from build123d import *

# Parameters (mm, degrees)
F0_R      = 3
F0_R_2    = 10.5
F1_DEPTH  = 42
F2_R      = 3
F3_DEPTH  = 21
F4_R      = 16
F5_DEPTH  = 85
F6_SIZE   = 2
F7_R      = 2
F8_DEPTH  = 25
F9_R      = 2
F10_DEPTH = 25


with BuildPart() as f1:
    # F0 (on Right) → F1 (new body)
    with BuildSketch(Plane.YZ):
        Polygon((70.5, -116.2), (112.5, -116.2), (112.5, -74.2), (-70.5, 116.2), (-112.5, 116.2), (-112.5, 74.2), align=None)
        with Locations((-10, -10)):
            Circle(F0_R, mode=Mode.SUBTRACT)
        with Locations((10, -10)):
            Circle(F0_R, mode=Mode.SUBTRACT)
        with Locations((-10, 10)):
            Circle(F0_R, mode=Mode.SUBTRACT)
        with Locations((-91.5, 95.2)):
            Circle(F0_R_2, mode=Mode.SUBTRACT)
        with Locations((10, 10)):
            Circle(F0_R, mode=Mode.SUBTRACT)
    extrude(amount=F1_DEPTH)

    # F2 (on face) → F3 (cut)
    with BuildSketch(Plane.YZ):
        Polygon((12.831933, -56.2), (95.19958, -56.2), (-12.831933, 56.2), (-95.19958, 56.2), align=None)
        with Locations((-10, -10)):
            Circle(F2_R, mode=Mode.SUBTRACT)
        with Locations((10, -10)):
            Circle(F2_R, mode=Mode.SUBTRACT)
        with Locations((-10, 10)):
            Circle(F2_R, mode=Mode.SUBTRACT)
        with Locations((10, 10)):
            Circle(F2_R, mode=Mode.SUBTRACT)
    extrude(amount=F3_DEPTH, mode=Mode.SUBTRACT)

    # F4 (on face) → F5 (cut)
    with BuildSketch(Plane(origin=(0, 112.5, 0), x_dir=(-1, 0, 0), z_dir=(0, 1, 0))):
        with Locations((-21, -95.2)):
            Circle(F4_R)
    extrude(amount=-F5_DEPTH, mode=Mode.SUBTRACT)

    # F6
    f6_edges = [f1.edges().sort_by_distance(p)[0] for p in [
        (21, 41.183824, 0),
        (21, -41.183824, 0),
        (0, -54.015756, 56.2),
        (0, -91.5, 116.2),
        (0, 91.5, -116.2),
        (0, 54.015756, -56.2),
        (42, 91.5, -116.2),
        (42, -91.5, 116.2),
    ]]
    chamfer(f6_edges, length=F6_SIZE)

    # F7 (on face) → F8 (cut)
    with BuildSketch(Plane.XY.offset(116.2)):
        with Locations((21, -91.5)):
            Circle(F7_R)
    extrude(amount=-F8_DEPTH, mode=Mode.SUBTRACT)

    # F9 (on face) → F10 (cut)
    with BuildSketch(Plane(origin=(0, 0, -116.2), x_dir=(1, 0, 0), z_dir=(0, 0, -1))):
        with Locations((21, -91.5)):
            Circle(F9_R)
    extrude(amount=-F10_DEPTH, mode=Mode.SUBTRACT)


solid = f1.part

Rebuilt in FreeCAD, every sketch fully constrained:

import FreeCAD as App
import Part
import Sketcher

V = App.Vector


def edges_at(feature, points):
    """Names of the edges that pass closest to the given points."""
    edges = feature.Shape.Edges
    near = lambda p: min(range(len(edges)), key=lambda i: edges[i].distToShape(Part.Vertex(*p))[0])
    return sorted({f"Edge{near(p) + 1}" for p in points})


def add_polygon(sketch, points):
    """Adds a closed chain of lines whose ends are joined by coincident constraints."""
    first, n = sketch.GeometryCount, len(points)
    for a, b in zip(points, points[1:] + points[:1]):
        sketch.addGeometry(Part.LineSegment(App.Vector(*a, 0), App.Vector(*b, 0)), False)
    for i in range(n):
        sketch.addConstraint(Sketcher.Constraint("Coincident", first + i, 2, first + (i + 1) % n, 1))

doc = App.newDocument("Part")
body = doc.addObject("PartDesign::Body", "Body")

sketch1 = doc.addObject("Sketcher::SketchObject", "Sketch")
body.addObject(sketch1)
sketch1.AttachmentSupport = (doc.YZ_Plane, [""])
sketch1.MapMode = "FlatFace"
add_polygon(sketch1, [(70.5, -116.2), (112.5, -116.2), (112.5, -74.2), (-70.5, 116.2), (-112.5, 116.2), (-112.5, 74.2)])
sketch1.addGeometry(Part.Circle(V(-10, -10, 0), V(0, 0, 1), 3), False)
sketch1.addGeometry(Part.Circle(V(10, -10, 0), V(0, 0, 1), 3), False)
sketch1.addGeometry(Part.Circle(V(-10, 10, 0), V(0, 0, 1), 3), False)
sketch1.addGeometry(Part.Circle(V(10, 10, 0), V(0, 0, 1), 3), False)
sketch1.addGeometry(Part.Circle(V(-91.5, 95.2, 0), V(0, 0, 1), 10.5), False)
sketch1.addConstraint(Sketcher.Constraint("Horizontal", 0))
sketch1.addConstraint(Sketcher.Constraint("Vertical", 1))
sketch1.addConstraint(Sketcher.Constraint("Horizontal", 3))
sketch1.addConstraint(Sketcher.Constraint("Vertical", 4))
sketch1.addConstraint(Sketcher.Constraint("Equal", 6, 7))
sketch1.addConstraint(Sketcher.Constraint("Equal", 7, 8))
sketch1.addConstraint(Sketcher.Constraint("Equal", 8, 9))
sketch1.addConstraint(Sketcher.Constraint("Symmetric", 7, 3, 8, 3, -1, 1))
sketch1.addConstraint(Sketcher.Constraint("Symmetric", 6, 3, 9, 3, -1, 1))
sketch1.addConstraint(Sketcher.Constraint("Symmetric", 0, 2, 3, 2, -1, 1))
sketch1.addConstraint(Sketcher.Constraint("Symmetric", 6, 3, 7, 3, -2))
sketch1.addConstraint(Sketcher.Constraint("Parallel", 2, 5))
sketch1.addConstraint(Sketcher.Constraint("Equal", 0, 3))
sketch1.addConstraint(Sketcher.Constraint("Equal", 3, 1))
sketch1.addConstraint(Sketcher.Constraint("Diameter", 6, 6.0))
sketch1.addConstraint(Sketcher.Constraint("Diameter", 10, 21.0))
sketch1.addConstraint(Sketcher.Constraint("DistanceX", 0, 1, 0, 2, 42.0))
sketch1.addConstraint(Sketcher.Constraint("DistanceX", 6, 3, -1, 1, 10.0))
sketch1.addConstraint(Sketcher.Constraint("DistanceY", 6, 3, -1, 1, 10.0))
sketch1.addConstraint(Sketcher.Constraint("DistanceX", 10, 3, 0, 2, 204.0))
sketch1.addConstraint(Sketcher.Constraint("DistanceX", 10, 3, 2, 2, 21.0))
sketch1.addConstraint(Sketcher.Constraint("DistanceY", 10, 3, 2, 2, 21.0))
sketch1.addConstraint(Sketcher.Constraint("DistanceY", -1, 1, 10, 3, 95.2))
pad1 = doc.addObject("PartDesign::Pad", "Pad")
body.addObject(pad1)
pad1.Profile = sketch1
pad1.Length = 42

sketch2 = doc.addObject("Sketcher::SketchObject", "Sketch001")
body.addObject(sketch2)
sketch2.AttachmentSupport = (doc.YZ_Plane, [""])
sketch2.MapMode = "FlatFace"
add_polygon(sketch2, [(12.831933, -56.2), (95.19958, -56.2), (-12.831933, 56.2), (-95.19958, 56.2)])
sketch2.addGeometry(Part.Circle(V(-10, -10, 0), V(0, 0, 1), 3), False)
sketch2.addGeometry(Part.Circle(V(10, -10, 0), V(0, 0, 1), 3), False)
sketch2.addGeometry(Part.Circle(V(-10, 10, 0), V(0, 0, 1), 3), False)
sketch2.addGeometry(Part.Circle(V(10, 10, 0), V(0, 0, 1), 3), False)
sketch2.addConstraint(Sketcher.Constraint("Horizontal", 0))
sketch2.addConstraint(Sketcher.Constraint("Horizontal", 2))
sketch2.addConstraint(Sketcher.Constraint("Equal", 4, 5))
sketch2.addConstraint(Sketcher.Constraint("Equal", 5, 6))
sketch2.addConstraint(Sketcher.Constraint("Equal", 6, 7))
sketch2.addConstraint(Sketcher.Constraint("Symmetric", 5, 3, 6, 3, -1, 1))
sketch2.addConstraint(Sketcher.Constraint("Symmetric", 4, 3, 7, 3, -1, 1))
sketch2.addConstraint(Sketcher.Constraint("Symmetric", 0, 2, 2, 2, -1, 1))
sketch2.addConstraint(Sketcher.Constraint("Symmetric", 4, 3, 5, 3, -2))
sketch2.addConstraint(Sketcher.Constraint("Parallel", 1, 3))
sketch2.addConstraint(Sketcher.Constraint("Diameter", 4, 6.0))
sketch2.addConstraint(Sketcher.Constraint("DistanceX", 4, 3, -1, 1, 10.0))
sketch2.addConstraint(Sketcher.Constraint("DistanceY", 4, 3, -1, 1, 10.0))
sketch2.addConstraint(Sketcher.Constraint("DistanceY", 0, 2, -1, 1, 56.2))
sketch2.addConstraint(Sketcher.Constraint("DistanceX", 0, 1, 0, 2, 82.367647))
sketch2.addConstraint(Sketcher.Constraint("DistanceX", -1, 1, 0, 2, 95.19958))
pocket1 = doc.addObject("PartDesign::Pocket", "Pocket")
body.addObject(pocket1)
pocket1.Profile = sketch2
pocket1.Length = 21
pocket1.Reversed = True

sketch3 = doc.addObject("Sketcher::SketchObject", "Sketch002")
body.addObject(sketch3)
sketch3.AttachmentSupport = (doc.XZ_Plane, [""])
sketch3.MapMode = "FlatFace"
sketch3.AttachmentOffset = App.Placement(V(0, 0, -112.5), App.Rotation())
sketch3.addGeometry(Part.Circle(V(21, -95.2, 0), V(0, 0, 1), 16), False)
sketch3.addConstraint(Sketcher.Constraint("Diameter", 0, 32.0))
sketch3.addConstraint(Sketcher.Constraint("DistanceX", -1, 1, 0, 3, 21.0))
sketch3.addConstraint(Sketcher.Constraint("DistanceY", 0, 3, -1, 1, 95.2))
pocket2 = doc.addObject("PartDesign::Pocket", "Pocket001")
body.addObject(pocket2)
pocket2.Profile = sketch3
pocket2.Length = 85
pocket2.Reversed = True
doc.recompute()

chamfer = doc.addObject("PartDesign::Chamfer", "Chamfer")
body.addObject(chamfer)
chamfer.Base = (pocket2, edges_at(pocket2, [
    (21, 41.184, 0),
    (21, -41.184, 0),
    (0, -54.016, 56.2),
    (0, -91.5, 116.2),
    (0, 91.5, -116.2),
    (0, 54.016, -56.2),
    (42, 91.5, -116.2),
    (42, -91.5, 116.2),
]))
chamfer.Size = 2

sketch4 = doc.addObject("Sketcher::SketchObject", "Sketch003")
body.addObject(sketch4)
sketch4.AttachmentSupport = (doc.XY_Plane, [""])
sketch4.MapMode = "FlatFace"
sketch4.AttachmentOffset = App.Placement(V(0, 0, 116.2), App.Rotation())
sketch4.addGeometry(Part.Circle(V(21, -91.5, 0), V(0, 0, 1), 2), False)
sketch4.addConstraint(Sketcher.Constraint("Diameter", 0, 4.0))
sketch4.addConstraint(Sketcher.Constraint("DistanceX", -1, 1, 0, 3, 21.0))
sketch4.addConstraint(Sketcher.Constraint("DistanceY", 0, 3, -1, 1, 91.5))
pocket3 = doc.addObject("PartDesign::Pocket", "Pocket002")
body.addObject(pocket3)
pocket3.Profile = sketch4
pocket3.Length = 25

sketch5 = doc.addObject("Sketcher::SketchObject", "Sketch004")
body.addObject(sketch5)
sketch5.AttachmentSupport = (doc.XY_Plane, [""])
sketch5.MapMode = "FlatFace"
sketch5.AttachmentOffset = App.Placement(V(0, 0, -116.2), App.Rotation())
sketch5.addGeometry(Part.Circle(V(21, 91.5, 0), V(0, 0, 1), 2), False)
sketch5.addConstraint(Sketcher.Constraint("Diameter", 0, 4.0))
sketch5.addConstraint(Sketcher.Constraint("DistanceX", -1, 1, 0, 3, 21.0))
sketch5.addConstraint(Sketcher.Constraint("DistanceY", -1, 1, 0, 3, 91.5))
pocket4 = doc.addObject("PartDesign::Pocket", "Pocket003")
body.addObject(pocket4)
pocket4.Profile = sketch5
pocket4.Length = 25
pocket4.Reversed = True

doc.recompute()
